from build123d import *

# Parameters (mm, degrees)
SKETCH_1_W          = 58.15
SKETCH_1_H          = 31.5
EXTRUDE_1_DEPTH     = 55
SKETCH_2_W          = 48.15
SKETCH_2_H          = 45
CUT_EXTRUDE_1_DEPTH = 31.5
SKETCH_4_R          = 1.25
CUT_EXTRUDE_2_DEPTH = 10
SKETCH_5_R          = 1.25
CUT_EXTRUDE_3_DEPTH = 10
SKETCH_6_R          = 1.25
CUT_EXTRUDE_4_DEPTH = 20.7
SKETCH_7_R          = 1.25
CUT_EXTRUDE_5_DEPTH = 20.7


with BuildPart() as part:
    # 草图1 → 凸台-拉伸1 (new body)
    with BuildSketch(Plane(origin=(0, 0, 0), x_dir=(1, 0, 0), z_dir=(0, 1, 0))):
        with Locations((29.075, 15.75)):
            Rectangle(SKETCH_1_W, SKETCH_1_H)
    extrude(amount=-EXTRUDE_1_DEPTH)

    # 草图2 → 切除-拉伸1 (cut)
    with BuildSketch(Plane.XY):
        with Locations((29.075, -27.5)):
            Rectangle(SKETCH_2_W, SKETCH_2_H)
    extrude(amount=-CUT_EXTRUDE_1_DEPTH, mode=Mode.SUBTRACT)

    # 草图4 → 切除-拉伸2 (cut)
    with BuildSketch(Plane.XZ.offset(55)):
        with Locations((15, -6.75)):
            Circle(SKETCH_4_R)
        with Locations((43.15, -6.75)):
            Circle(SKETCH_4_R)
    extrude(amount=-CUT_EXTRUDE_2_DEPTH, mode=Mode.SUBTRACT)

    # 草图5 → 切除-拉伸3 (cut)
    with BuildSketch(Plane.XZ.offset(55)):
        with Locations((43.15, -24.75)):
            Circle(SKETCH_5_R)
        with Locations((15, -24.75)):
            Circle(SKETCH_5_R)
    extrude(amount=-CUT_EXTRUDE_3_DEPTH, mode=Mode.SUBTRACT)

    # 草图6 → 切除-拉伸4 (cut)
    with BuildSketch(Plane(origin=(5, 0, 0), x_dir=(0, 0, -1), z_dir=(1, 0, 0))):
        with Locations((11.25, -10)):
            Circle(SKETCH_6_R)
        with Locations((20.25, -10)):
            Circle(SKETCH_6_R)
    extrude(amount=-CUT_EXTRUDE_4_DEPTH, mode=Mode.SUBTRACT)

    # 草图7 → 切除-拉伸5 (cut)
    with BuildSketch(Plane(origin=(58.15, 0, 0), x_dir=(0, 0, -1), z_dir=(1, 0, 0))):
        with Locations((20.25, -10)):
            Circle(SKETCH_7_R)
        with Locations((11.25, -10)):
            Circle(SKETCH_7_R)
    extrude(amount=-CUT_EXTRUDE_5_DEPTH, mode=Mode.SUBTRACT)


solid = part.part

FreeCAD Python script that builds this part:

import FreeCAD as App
import Part
import Sketcher
from FreeCAD import Vector
Q = App.Units.Quantity


def add_polygon(sketch, points):
    """Adds a closed chain of lines whose ends are joined by coincident constraints."""
    first, n = sketch.GeometryCount, len(points)
    for a, b in zip(points, points[1:] + points[:1]):
        sketch.addGeometry(Part.LineSegment(App.Vector(*a, 0), App.Vector(*b, 0)), False)
    for i in range(n):
        sketch.addConstraint(Sketcher.Constraint("Coincident", first + i, 2, first + (i + 1) % n, 1))

doc = App.newDocument("Part")
body = doc.addObject("PartDesign::Body", "Body")

# Sketch on XZ plane
sketch1 = body.newObject("Sketcher::SketchObject", "Sketch")
sketch1.AttachmentSupport = (doc.getObject("XZ_Plane"), [""])
sketch1.MapMode = "FlatFace"
add_polygon(sketch1, [(0, -32), (0, 0), (58, 0), (58, -32)])  # lines 0-3
sketch1.addConstraint([
    Sketcher.Constraint("Vertical", 0),
    Sketcher.Constraint("Horizontal", 1),
    Sketcher.Constraint("Vertical", 2),
    Sketcher.Constraint("Horizontal", 3),
    Sketcher.Constraint("Coincident", 0, 2, -1, 1),
    Sketcher.Constraint("DistanceY", 0, 1, 0, 2, Q("31.5 mm")),
    Sketcher.Constraint("DistanceX", 1, 1, 1, 2, Q("58.15 mm")),
])
pad1 = body.newObject("PartDesign::Pad", "Pad")
pad1.Profile = sketch1
pad1.Length = 55

# Sketch on XY plane
sketch2 = body.newObject("Sketcher::SketchObject", "Sketch001")
sketch2.AttachmentSupport = (doc.getObject("XY_Plane"), [""])
sketch2.MapMode = "FlatFace"
add_polygon(sketch2, [(5, -5), (5, -50), (53, -50), (53, -5)])  # lines 0-3
sketch2.addConstraint([
    Sketcher.Constraint("Vertical", 0),
    Sketcher.Constraint("Horizontal", 1),
    Sketcher.Constraint("Vertical", 2),
    Sketcher.Constraint("Horizontal", 3),
    Sketcher.Constraint("DistanceY", 0, 2, 0, 1, Q("45 mm")),
    Sketcher.Constraint("DistanceX", -1, 1, 0, 2, Q("5 mm")),
    Sketcher.Constraint("DistanceY", 0, 2, -1, 1, Q("50 mm")),
    Sketcher.Constraint("DistanceX", 1, 1, 1, 2, Q("48.15 mm")),
])
pocket1 = body.newObject("PartDesign::Pocket", "Pocket")
pocket1.Profile = sketch2
pocket1.Length = 31.5

# Sketch on XZ plane
sketch3 = body.newObject("Sketcher::SketchObject", "Sketch002")
sketch3.AttachmentSupport = (doc.getObject("XZ_Plane"), [""])
sketch3.MapMode = "FlatFace"
sketch3.AttachmentOffset = App.Placement(Vector(0, 0, 55), App.Rotation())
sketch3.addGeometry([
    Part.Circle(Vector(15, -6.8, 0), Vector(0, 0, 1), 1.2),
    Part.Circle(Vector(43.1, -6.8, 0), Vector(0, 0, 1), 1.2),
], False)
sketch3.addConstraint([
    Sketcher.Constraint("Equal", 0, 1),
    Sketcher.Constraint("Horizontal", 0, 3, 1, 3),
    Sketcher.Constraint("Diameter", 0, Q("2.5 mm")),
    Sketcher.Constraint("DistanceX", -1, 1, 0, 3, Q("15 mm")),
    Sketcher.Constraint("DistanceY", 0, 3, -1, 1, Q("6.75 mm")),
    Sketcher.Constraint("DistanceX", -1, 1, 1, 3, Q("43.15 mm")),
])
pocket2 = body.newObject("PartDesign::Pocket", "Pocket001")
pocket2.Profile = sketch3
pocket2.Length = 10

# Sketch on XZ plane
sketch4 = body.newObject("Sketcher::SketchObject", "Sketch003")
sketch4.AttachmentSupport = (doc.getObject("XZ_Plane"), [""])
sketch4.MapMode = "FlatFace"
sketch4.AttachmentOffset = App.Placement(Vector(0, 0, 55), App.Rotation())
sketch4.addGeometry([
    Part.Circle(Vector(43.1, -24.8, 0), Vector(0, 0, 1), 1.2),
    Part.Circle(Vector(15, -24.8, 0), Vector(0, 0, 1), 1.2),
], False)
sketch4.addConstraint([
    Sketcher.Constraint("Equal", 0, 1),
    Sketcher.Constraint("Horizontal", 0, 3, 1, 3),
    Sketcher.Constraint("Diameter", 0, Q("2.5 mm")),
    Sketcher.Constraint("DistanceX", -1, 1, 1, 3, Q("15 mm")),
    Sketcher.Constraint("DistanceX", -1, 1, 0, 3, Q("43.15 mm")),
    Sketcher.Constraint("DistanceY", 0, 3, -1, 1, Q("24.75 mm")),
])
pocket3 = body.newObject("PartDesign::Pocket", "Pocket002")
pocket3.Profile = sketch4
pocket3.Length = 10

# Sketch on YZ plane
sketch5 = body.newObject("Sketcher::SketchObject", "Sketch004")
sketch5.AttachmentSupport = (doc.getObject("YZ_Plane"), [""])
sketch5.MapMode = "FlatFace"
sketch5.AttachmentOffset = App.Placement(Vector(0, 0, 5), App.Rotation())
sketch5.addGeometry([
    Part.Circle(Vector(-10, -11.2, 0), Vector(0, 0, 1), 1.2),
    Part.Circle(Vector(-10, -20.2, 0), Vector(0, 0, 1), 1.2),
], False)
sketch5.addConstraint([
    Sketcher.Constraint("Equal", 0, 1),
    Sketcher.Constraint("Vertical", 0, 3, 1, 3),
    Sketcher.Constraint("Diameter", 0, Q("2.5 mm")),
    Sketcher.Constraint("DistanceX", 0, 3, -1, 1, Q("10 mm")),
    Sketcher.Constraint("DistanceY", 1, 3, 0, 3, Q("9 mm")),
    Sketcher.Constraint("DistanceY", 0, 3, -1, 1, Q("11.25 mm")),
])
pocket4 = body.newObject("PartDesign::Pocket", "Pocket003")
pocket4.Profile = sketch5
pocket4.Length = 20.7

# Sketch on YZ plane
sketch6 = body.newObject("Sketcher::SketchObject", "Sketch005")
sketch6.AttachmentSupport = (doc.getObject("YZ_Plane"), [""])
sketch6.MapMode = "FlatFace"
sketch6.AttachmentOffset = App.Placement(Vector(0, 0, 58.15), App.Rotation())
sketch6.addGeometry([
    Part.Circle(Vector(-10, -20.2, 0), Vector(0, 0, 1), 1.2),
    Part.Circle(Vector(-10, -11.2, 0), Vector(0, 0, 1), 1.2),
], False)
sketch6.addConstraint([
    Sketcher.Constraint("Equal", 0, 1),
    Sketcher.Constraint("Vertical", 0, 3, 1, 3),
    Sketcher.Constraint("Diameter", 0, Q("2.5 mm")),
    Sketcher.Constraint("DistanceX", 0, 3, -1, 1, Q("10 mm")),
    Sketcher.Constraint("DistanceY", 0, 3, 1, 3, Q("9 mm")),
    Sketcher.Constraint("DistanceY", 0, 3, -1, 1, Q("20.25 mm")),
])
pocket5 = body.newObject("PartDesign::Pocket", "Pocket004")
pocket5.Profile = sketch6
pocket5.Length = 20.7

doc.recompute()
